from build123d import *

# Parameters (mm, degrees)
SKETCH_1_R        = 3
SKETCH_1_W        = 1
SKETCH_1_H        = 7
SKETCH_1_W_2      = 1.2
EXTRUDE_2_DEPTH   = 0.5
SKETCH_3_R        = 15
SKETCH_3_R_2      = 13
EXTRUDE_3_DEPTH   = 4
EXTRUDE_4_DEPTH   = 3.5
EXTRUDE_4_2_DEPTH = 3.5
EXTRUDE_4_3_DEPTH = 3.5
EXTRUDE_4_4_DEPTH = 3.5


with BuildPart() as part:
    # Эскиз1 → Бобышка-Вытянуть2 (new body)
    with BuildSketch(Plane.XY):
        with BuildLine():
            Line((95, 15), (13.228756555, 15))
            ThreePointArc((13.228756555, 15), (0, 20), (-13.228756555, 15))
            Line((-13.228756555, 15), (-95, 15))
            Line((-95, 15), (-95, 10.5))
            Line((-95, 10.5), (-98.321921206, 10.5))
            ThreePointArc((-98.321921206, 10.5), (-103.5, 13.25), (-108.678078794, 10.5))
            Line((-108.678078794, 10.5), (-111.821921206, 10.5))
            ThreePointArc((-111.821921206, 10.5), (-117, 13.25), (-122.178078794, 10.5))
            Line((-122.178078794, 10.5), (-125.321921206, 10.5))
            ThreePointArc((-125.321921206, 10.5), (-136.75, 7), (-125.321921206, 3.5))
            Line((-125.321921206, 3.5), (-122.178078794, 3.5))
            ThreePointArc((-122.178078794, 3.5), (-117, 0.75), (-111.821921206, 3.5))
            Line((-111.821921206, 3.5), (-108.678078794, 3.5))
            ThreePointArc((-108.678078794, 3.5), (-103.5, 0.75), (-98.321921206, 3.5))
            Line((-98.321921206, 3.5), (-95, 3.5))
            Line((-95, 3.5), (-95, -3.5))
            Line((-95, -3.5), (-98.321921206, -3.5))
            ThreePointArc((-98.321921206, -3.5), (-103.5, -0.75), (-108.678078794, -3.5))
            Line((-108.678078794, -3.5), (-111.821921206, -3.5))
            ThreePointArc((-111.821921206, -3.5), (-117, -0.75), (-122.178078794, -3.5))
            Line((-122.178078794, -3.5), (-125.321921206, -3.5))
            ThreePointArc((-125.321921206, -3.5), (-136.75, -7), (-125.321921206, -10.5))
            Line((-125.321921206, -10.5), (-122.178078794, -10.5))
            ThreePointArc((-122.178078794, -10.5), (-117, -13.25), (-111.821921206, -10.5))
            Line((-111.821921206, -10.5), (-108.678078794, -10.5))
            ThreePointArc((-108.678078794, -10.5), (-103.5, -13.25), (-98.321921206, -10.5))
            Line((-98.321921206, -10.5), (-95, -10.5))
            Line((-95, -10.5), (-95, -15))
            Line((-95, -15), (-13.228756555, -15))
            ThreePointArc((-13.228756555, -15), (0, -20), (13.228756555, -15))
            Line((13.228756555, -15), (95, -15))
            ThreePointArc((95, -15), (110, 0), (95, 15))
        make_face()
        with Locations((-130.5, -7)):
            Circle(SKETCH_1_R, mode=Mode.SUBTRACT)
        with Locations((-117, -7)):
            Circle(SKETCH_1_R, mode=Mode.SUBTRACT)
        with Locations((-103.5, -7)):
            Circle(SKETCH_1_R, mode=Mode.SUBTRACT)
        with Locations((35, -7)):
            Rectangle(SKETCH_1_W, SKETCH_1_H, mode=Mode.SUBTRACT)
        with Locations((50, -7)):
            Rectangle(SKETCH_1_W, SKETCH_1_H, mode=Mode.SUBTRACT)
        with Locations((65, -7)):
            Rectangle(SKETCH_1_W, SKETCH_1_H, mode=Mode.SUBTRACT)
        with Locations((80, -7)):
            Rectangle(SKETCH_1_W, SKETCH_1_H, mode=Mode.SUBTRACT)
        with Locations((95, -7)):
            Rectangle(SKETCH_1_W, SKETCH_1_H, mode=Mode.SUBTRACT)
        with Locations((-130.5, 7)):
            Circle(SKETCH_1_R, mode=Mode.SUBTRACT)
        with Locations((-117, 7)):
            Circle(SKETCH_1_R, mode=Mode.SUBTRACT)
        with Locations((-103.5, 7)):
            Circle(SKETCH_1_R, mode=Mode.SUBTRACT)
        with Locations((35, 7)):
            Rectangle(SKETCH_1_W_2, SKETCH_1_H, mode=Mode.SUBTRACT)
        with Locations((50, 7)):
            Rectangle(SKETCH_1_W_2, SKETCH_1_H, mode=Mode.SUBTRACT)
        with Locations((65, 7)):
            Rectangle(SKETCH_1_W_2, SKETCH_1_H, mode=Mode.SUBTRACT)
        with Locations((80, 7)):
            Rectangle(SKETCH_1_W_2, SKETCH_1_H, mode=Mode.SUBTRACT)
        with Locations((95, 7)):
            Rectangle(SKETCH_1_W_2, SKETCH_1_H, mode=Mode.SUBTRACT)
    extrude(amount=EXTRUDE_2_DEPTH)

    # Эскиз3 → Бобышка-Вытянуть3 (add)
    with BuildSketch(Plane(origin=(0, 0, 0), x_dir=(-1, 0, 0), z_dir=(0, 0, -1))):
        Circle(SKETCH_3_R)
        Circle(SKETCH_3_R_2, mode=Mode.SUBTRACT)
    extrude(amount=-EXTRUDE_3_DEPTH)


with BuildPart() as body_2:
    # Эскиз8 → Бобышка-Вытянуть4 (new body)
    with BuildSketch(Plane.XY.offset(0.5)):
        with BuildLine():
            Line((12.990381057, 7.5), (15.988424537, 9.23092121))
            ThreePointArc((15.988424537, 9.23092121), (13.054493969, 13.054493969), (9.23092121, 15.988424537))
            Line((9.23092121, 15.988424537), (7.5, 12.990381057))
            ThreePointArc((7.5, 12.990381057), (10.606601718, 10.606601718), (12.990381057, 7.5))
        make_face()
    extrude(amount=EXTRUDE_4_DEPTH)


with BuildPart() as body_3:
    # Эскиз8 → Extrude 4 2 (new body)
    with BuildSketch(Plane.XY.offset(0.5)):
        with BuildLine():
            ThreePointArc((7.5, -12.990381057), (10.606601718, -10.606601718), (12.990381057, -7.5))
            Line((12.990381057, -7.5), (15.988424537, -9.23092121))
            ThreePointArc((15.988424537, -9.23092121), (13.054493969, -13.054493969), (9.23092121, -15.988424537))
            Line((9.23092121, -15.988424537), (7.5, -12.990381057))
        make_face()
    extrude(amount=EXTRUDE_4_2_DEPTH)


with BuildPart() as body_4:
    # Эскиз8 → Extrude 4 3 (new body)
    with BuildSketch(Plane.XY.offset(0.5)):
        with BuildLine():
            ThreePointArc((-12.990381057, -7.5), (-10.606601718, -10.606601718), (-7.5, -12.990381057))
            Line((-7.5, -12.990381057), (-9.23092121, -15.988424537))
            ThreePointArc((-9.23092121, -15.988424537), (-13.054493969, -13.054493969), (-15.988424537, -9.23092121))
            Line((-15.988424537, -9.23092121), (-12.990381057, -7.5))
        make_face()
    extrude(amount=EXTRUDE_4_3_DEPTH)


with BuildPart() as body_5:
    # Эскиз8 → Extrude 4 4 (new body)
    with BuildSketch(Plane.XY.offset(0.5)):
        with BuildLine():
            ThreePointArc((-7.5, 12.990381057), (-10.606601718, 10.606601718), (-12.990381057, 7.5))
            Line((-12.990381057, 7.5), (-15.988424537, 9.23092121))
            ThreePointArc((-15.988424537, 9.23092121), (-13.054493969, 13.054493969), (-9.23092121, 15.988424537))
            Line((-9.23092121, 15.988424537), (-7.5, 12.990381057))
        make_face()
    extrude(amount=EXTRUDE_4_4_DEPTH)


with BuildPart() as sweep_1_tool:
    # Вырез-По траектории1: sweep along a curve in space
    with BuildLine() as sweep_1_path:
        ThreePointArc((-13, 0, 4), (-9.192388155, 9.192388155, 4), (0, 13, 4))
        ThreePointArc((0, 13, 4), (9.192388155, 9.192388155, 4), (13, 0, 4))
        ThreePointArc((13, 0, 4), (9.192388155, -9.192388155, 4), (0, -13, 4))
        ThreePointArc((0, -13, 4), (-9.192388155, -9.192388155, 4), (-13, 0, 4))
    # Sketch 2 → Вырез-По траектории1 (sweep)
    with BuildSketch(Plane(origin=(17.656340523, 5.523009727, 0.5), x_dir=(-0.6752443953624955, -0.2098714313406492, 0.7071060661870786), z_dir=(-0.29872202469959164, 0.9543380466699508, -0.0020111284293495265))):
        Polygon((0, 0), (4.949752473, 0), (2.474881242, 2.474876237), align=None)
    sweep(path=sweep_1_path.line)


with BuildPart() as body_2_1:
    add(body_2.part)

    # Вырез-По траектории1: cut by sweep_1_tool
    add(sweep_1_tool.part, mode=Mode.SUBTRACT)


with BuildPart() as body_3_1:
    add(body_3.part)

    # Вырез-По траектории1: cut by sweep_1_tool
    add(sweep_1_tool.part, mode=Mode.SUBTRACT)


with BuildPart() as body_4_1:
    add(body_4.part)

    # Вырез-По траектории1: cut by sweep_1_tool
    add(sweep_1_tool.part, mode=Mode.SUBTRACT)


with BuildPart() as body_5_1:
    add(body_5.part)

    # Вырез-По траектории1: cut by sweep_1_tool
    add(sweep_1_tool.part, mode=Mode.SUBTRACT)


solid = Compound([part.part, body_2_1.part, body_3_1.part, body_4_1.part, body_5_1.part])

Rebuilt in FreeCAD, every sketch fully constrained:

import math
import FreeCAD as App
import Part
import Sketcher
Q = App.Units.Quantity


def add_polygon(sketch, points):
    """Adds a closed chain of lines whose ends are joined by coincident constraints."""
    first, n = sketch.GeometryCount, len(points)
    for a, b in zip(points, points[1:] + points[:1]):
        sketch.addGeometry(Part.LineSegment(App.Vector(*a, 0), App.Vector(*b, 0)), False)
    for i in range(n):
        sketch.addConstraint(Sketcher.Constraint("Coincident", first + i, 2, first + (i + 1) % n, 1))

doc = App.newDocument("Part")
body = doc.addObject("PartDesign::Body", "Body")

# Sketch on XY plane
sketch1 = body.newObject("Sketcher::SketchObject", "Sketch")
sketch1.AttachmentSupport = (doc.getObject("XY_Plane"), [""])
sketch1.MapMode = "FlatFace"
sketch1.addGeometry(Part.LineSegment(App.Vector(95, 15, 0), App.Vector(13.228757, 15, 0)), False)  # 0
sketch1.addGeometry(Part.ArcOfCircle(Part.Circle(App.Vector(0, 0, 0), App.Vector(0, 0, 1), 20), math.radians(48.590378), math.radians(131.409622)), False)  # 1
sketch1.addGeometry(Part.LineSegment(App.Vector(-13.228757, 15, 0), App.Vector(-95, 15, 0)), False)  # 2
sketch1.addGeometry(Part.LineSegment(App.Vector(-95, 15, 0), App.Vector(-95, 10.5, 0)), False)  # 3
sketch1.addGeometry(Part.LineSegment(App.Vector(-95, 10.5, 0), App.Vector(-98.321921, 10.5, 0)), False)  # 4
sketch1.addGeometry(Part.ArcOfCircle(Part.Circle(App.Vector(-103.5, 7, 0), App.Vector(0, 0, 1), 6.25), math.radians(34.055798), math.radians(145.944202)), False)  # 5
sketch1.addGeometry(Part.LineSegment(App.Vector(-108.678079, 10.5, 0), App.Vector(-111.821921, 10.5, 0)), False)  # 6
sketch1.addGeometry(Part.ArcOfCircle(Part.Circle(App.Vector(-117, 7, 0), App.Vector(0, 0, 1), 6.25), math.radians(34.055798), math.radians(145.944202)), False)  # 7
sketch1.addGeometry(Part.LineSegment(App.Vector(-122.178079, 10.5, 0), App.Vector(-125.321921, 10.5, 0)), False)  # 8
sketch1.addGeometry(Part.ArcOfCircle(Part.Circle(App.Vector(-130.5, 7, 0), App.Vector(0, 0, 1), 6.25), math.radians(34.055798), math.radians(325.944202)), False)  # 9
sketch1.addGeometry(Part.LineSegment(App.Vector(-125.321921, 3.5, 0), App.Vector(-122.178079, 3.5, 0)), False)  # 10
sketch1.addGeometry(Part.ArcOfCircle(Part.Circle(App.Vector(-117, 7, 0), App.Vector(0, 0, 1), 6.25), math.radians(-145.944202), math.radians(-34.055798)), False)  # 11
sketch1.addGeometry(Part.LineSegment(App.Vector(-111.821921, 3.5, 0), App.Vector(-108.678079, 3.5, 0)), False)  # 12
sketch1.addGeometry(Part.ArcOfCircle(Part.Circle(App.Vector(-103.5, 7, 0), App.Vector(0, 0, 1), 6.25), math.radians(-145.944202), math.radians(-34.055798)), False)  # 13
sketch1.addGeometry(Part.LineSegment(App.Vector(-98.321921, 3.5, 0), App.Vector(-95, 3.5, 0)), False)  # 14
sketch1.addGeometry(Part.LineSegment(App.Vector(-95, 3.5, 0), App.Vector(-95, -3.5, 0)), False)  # 15
sketch1.addGeometry(Part.LineSegment(App.Vector(-95, -3.5, 0), App.Vector(-98.321921, -3.5, 0)), False)  # 16
sketch1.addGeometry(Part.ArcOfCircle(Part.Circle(App.Vector(-103.5, -7, 0), App.Vector(0, 0, 1), 6.25), math.radians(34.055798), math.radians(145.944202)), False)  # 17
sketch1.addGeometry(Part.LineSegment(App.Vector(-108.678079, -3.5, 0), App.Vector(-111.821921, -3.5, 0)), False)  # 18
sketch1.addGeometry(Part.ArcOfCircle(Part.Circle(App.Vector(-117, -7, 0), App.Vector(0, 0, 1), 6.25), math.radians(34.055798), math.radians(145.944202)), False)  # 19
sketch1.addGeometry(Part.LineSegment(App.Vector(-122.178079, -3.5, 0), App.Vector(-125.321921, -3.5, 0)), False)  # 20
sketch1.addGeometry(Part.ArcOfCircle(Part.Circle(App.Vector(-130.5, -7, 0), App.Vector(0, 0, 1), 6.25), math.radians(34.055798), math.radians(325.944202)), False)  # 21
sketch1.addGeometry(Part.LineSegment(App.Vector(-125.321921, -10.5, 0), App.Vector(-122.178079, -10.5, 0)), False)  # 22
sketch1.addGeometry(Part.ArcOfCircle(Part.Circle(App.Vector(-117, -7, 0), App.Vector(0, 0, 1), 6.25), math.radians(-145.944202), math.radians(-34.055798)), False)  # 23
sketch1.addGeometry(Part.LineSegment(App.Vector(-111.821921, -10.5, 0), App.Vector(-108.678079, -10.5, 0)), False)  # 24
sketch1.addGeometry(Part.ArcOfCircle(Part.Circle(App.Vector(-103.5, -7, 0), App.Vector(0, 0, 1), 6.25), math.radians(-145.944202), math.radians(-34.055798)), False)  # 25
sketch1.addGeometry(Part.LineSegment(App.Vector(-98.321921, -10.5, 0), App.Vector(-95, -10.5, 0)), False)  # 26
sketch1.addGeometry(Part.LineSegment(App.Vector(-95, -10.5, 0), App.Vector(-95, -15, 0)), False)  # 27
sketch1.addGeometry(Part.LineSegment(App.Vector(-95, -15, 0), App.Vector(-13.228757, -15, 0)), False)  # 28
sketch1.addGeometry(Part.ArcOfCircle(Part.Circle(App.Vector(0, 0, 0), App.Vector(0, 0, 1), 20), math.radians(-131.409622), math.radians(-48.590378)), False)  # 29
sketch1.addGeometry(Part.LineSegment(App.Vector(13.228757, -15, 0), App.Vector(95, -15, 0)), False)  # 30
sketch1.addGeometry(Part.ArcOfCircle(Part.Circle(App.Vector(95, 0, 0), App.Vector(0, 0, 1), 15), math.radians(-90), math.radians(90)), False)  # 31
sketch1.addGeometry(Part.Circle(App.Vector(-130.5, -7, 0), App.Vector(0, 0, 1), 3), False)  # 32
sketch1.addGeometry(Part.Circle(App.Vector(-117, -7, 0), App.Vector(0, 0, 1), 3), False)  # 33
sketch1.addGeometry(Part.Circle(App.Vector(-103.5, -7, 0), App.Vector(0, 0, 1), 3), False)  # 34
add_polygon(sketch1, [(35.5, -10.5), (34.5, -10.5), (34.5, -3.5), (35.5, -3.5)])  # lines 35-38
add_polygon(sketch1, [(50.5, -10.5), (49.5, -10.5), (49.5, -3.5), (50.5, -3.5)])  # lines 39-42
add_polygon(sketch1, [(65.5, -10.5), (64.5, -10.5), (64.5, -3.5), (65.5, -3.5)])  # lines 43-46
add_polygon(sketch1, [(80.5, -10.5), (79.5, -10.5), (79.5, -3.5), (80.5, -3.5)])  # lines 47-50
add_polygon(sketch1, [(95.5, -10.5), (94.5, -10.5), (94.5, -3.5), (95.5, -3.5)])  # lines 51-54
sketch1.addGeometry(Part.Circle(App.Vector(-130.5, 7, 0), App.Vector(0, 0, 1), 3), False)  # 55
sketch1.addGeometry(Part.Circle(App.Vector(-117, 7, 0), App.Vector(0, 0, 1), 3), False)  # 56
sketch1.addGeometry(Part.Circle(App.Vector(-103.5, 7, 0), App.Vector(0, 0, 1), 3), False)  # 57
add_polygon(sketch1, [(35.6, 3.5), (34.4, 3.5), (34.4, 10.5), (35.6, 10.5)])  # lines 58-61
add_polygon(sketch1, [(50.6, 3.5), (49.4, 3.5), (49.4, 10.5), (50.6, 10.5)])  # lines 62-65
add_polygon(sketch1, [(65.6, 3.5), (64.4, 3.5), (64.4, 10.5), (65.6, 10.5)])  # lines 66-69
add_polygon(sketch1, [(80.6, 3.5), (79.4, 3.5), (79.4, 10.5), (80.6, 10.5)])  # lines 70-73
add_polygon(sketch1, [(95.6, 3.5), (94.4, 3.5), (94.4, 10.5), (95.6, 10.5)])  # lines 74-77
sketch1.addConstraint([
    Sketcher.Constraint("Coincident", 0, 2, 1, 1),
    Sketcher.Constraint("Coincident", 1, 2, 2, 1),
    Sketcher.Constraint("Coincident", 2, 2, 3, 1),
    Sketcher.Constraint("Coincident", 3, 2, 4, 1),
    Sketcher.Constraint("Coincident", 4, 2, 5, 1),
    Sketcher.Constraint("Coincident", 5, 2, 6, 1),
    Sketcher.Constraint("Coincident", 6, 2, 7, 1),
    Sketcher.Constraint("Coincident", 7, 2, 8, 1),
    Sketcher.Constraint("Coincident", 8, 2, 9, 1),
    Sketcher.Constraint("Coincident", 9, 2, 10, 1),
    Sketcher.Constraint("Coincident", 10, 2, 11, 1),
    Sketcher.Constraint("Coincident", 11, 2, 12, 1),
    Sketcher.Constraint("Coincident", 12, 2, 13, 1),
    Sketcher.Constraint("Coincident", 13, 2, 14, 1),
    Sketcher.Constraint("Coincident", 14, 2, 15, 1),
    Sketcher.Constraint("Coincident", 15, 2, 16, 1),
    Sketcher.Constraint("Coincident", 16, 2, 17, 1),
    Sketcher.Constraint("Coincident", 17, 2, 18, 1),
    Sketcher.Constraint("Coincident", 18, 2, 19, 1),
    Sketcher.Constraint("Coincident", 19, 2, 20, 1),
    Sketcher.Constraint("Coincident", 20, 2, 21, 1),
    Sketcher.Constraint("Coincident", 21, 2, 22, 1),
    Sketcher.Constraint("Coincident", 22, 2, 23, 1),
    Sketcher.Constraint("Coincident", 23, 2, 24, 1),
    Sketcher.Constraint("Coincident", 24, 2, 25, 1),
    Sketcher.Constraint("Coincident", 25, 2, 26, 1),
    Sketcher.Constraint("Coincident", 26, 2, 27, 1),
    Sketcher.Constraint("Coincident", 27, 2, 28, 1),
    Sketcher.Constraint("Coincident", 28, 2, 29, 1),
    Sketcher.Constraint("Coincident", 29, 2, 30, 1),
    Sketcher.Constraint("Tangent", 30, 2, 31, 1),
    Sketcher.Constraint("Tangent", 31, 2, 0, 1),
    Sketcher.Constraint("Horizontal", 0),
    Sketcher.Constraint("Horizontal", 2),
    Sketcher.Constraint("Vertical", 3),
    Sketcher.Constraint("Horizontal", 4),
    Sketcher.Constraint("Horizontal", 6),
    Sketcher.Constraint("Horizontal", 8),
    Sketcher.Constraint("Horizontal", 10),
    Sketcher.Constraint("Horizontal", 12),
    Sketcher.Constraint("Horizontal", 14),
    Sketcher.Constraint("Vertical", 15),
    Sketcher.Constraint("Horizontal", 16),
    Sketcher.Constraint("Horizontal", 18),
    Sketcher.Constraint("Horizontal", 20),
    Sketcher.Constraint("Horizontal", 22),
    Sketcher.Constraint("Horizontal", 24),
    Sketcher.Constraint("Horizontal", 26),
    Sketcher.Constraint("Vertical", 27),
    Sketcher.Constraint("Horizontal", 28),
    Sketcher.Constraint("Horizontal", 30),
    Sketcher.Constraint("Horizontal", 35),
    Sketcher.Constraint("Vertical", 36),
    Sketcher.Constraint("Horizontal", 37),
    Sketcher.Constraint("Vertical", 38),
    Sketcher.Constraint("Horizontal", 39),
    Sketcher.Constraint("Vertical", 40),
    Sketcher.Constraint("Horizontal", 41),
    Sketcher.Constraint("Vertical", 42),
    Sketcher.Constraint("Horizontal", 43),
    Sketcher.Constraint("Vertical", 44),
    Sketcher.Constraint("Horizontal", 45),
    Sketcher.Constraint("Vertical", 46),
    Sketcher.Constraint("Horizontal", 47),
    Sketcher.Constraint("Vertical", 48),
    Sketcher.Constraint("Horizontal", 49),
    Sketcher.Constraint("Vertical", 50),
    Sketcher.Constraint("Horizontal", 51),
    Sketcher.Constraint("Vertical", 52),
    Sketcher.Constraint("Horizontal", 53),
    Sketcher.Constraint("Vertical", 54),
    Sketcher.Constraint("Horizontal", 58),
    Sketcher.Constraint("Vertical", 59),
    Sketcher.Constraint("Horizontal", 60),
    Sketcher.Constraint("Vertical", 61),
    Sketcher.Constraint("Horizontal", 62),
    Sketcher.Constraint("Vertical", 63),
    Sketcher.Constraint("Horizontal", 64),
    Sketcher.Constraint("Vertical", 65),
    Sketcher.Constraint("Horizontal", 66),
    Sketcher.Constraint("Vertical", 67),
    Sketcher.Constraint("Horizontal", 68),
    Sketcher.Constraint("Vertical", 69),
    Sketcher.Constraint("Horizontal", 70),
    Sketcher.Constraint("Vertical", 71),
    Sketcher.Constraint("Horizontal", 72),
    Sketcher.Constraint("Vertical", 73),
    Sketcher.Constraint("Horizontal", 74),
    Sketcher.Constraint("Vertical", 75),
    Sketcher.Constraint("Horizontal", 76),
    Sketcher.Constraint("Vertical", 77),
    Sketcher.Constraint("Coincident", 1, 3, -1, 1),
    Sketcher.Constraint("Coincident", 29, 3, -1, 1),
    Sketcher.Constraint("Coincident", 11, 3, 7, 3),
    Sketcher.Constraint("Coincident", 13, 3, 5, 3),
    Sketcher.Constraint("Coincident", 23, 3, 19, 3),
    Sketcher.Constraint("Coincident", 25, 3, 17, 3),
    Sketcher.Constraint("Coincident", 32, 3, 21, 3),
    Sketcher.Constraint("Coincident", 33, 3, 19, 3),
    Sketcher.Constraint("Coincident", 34, 3, 17, 3),
    Sketcher.Constraint("Coincident", 55, 3, 9, 3),
    Sketcher.Constraint("Coincident", 56, 3, 7, 3),
    Sketcher.Constraint("Coincident", 57, 3, 5, 3),
    Sketcher.Constraint("Equal", 5, 7),
    Sketcher.Constraint("Equal", 7, 9),
    Sketcher.Constraint("Equal", 9, 11),
    Sketcher.Constraint("Equal", 11, 13),
    Sketcher.Constraint("Equal", 13, 17),
    Sketcher.Constraint("Equal", 17, 19),
    Sketcher.Constraint("Equal", 19, 21),
    Sketcher.Constraint("Equal", 21, 23),
    Sketcher.Constraint("Equal", 23, 25),
    Sketcher.Constraint("Equal", 1, 29),
    Sketcher.Constraint("Equal", 32, 33),
    Sketcher.Constraint("Equal", 33, 34),
    Sketcher.Constraint("Equal", 34, 55),
    Sketcher.Constraint("Equal", 55, 56),
    Sketcher.Constraint("Equal", 56, 57),
    Sketcher.Constraint("Symmetric", 2, 2, 30, 2, -1, 1),
    Sketcher.Constraint("Symmetric", 27, 2, 31, 2, -1, 1),
    Sketcher.Constraint("Symmetric", 5, 3, 17, 3, -1),
    Sketcher.Constraint("Symmetric", 7, 3, 19, 3, -1),
    Sketcher.Constraint("Symmetric", 9, 3, 21, 3, -1),
    Sketcher.Constraint("PointOnObject", 31, 3, -1),
    Sketcher.Constraint("Horizontal", 5, 3, 7, 3),
    Sketcher.Constraint("Horizontal", 7, 3, 9, 3),
    Sketcher.Constraint("Horizontal", 4, 2, 5, 2),
    Sketcher.Constraint("Horizontal", 6, 2, 7, 2),
    Sketcher.Constraint("Horizontal", 10, 2, 11, 2),
    Sketcher.Constraint("Horizontal", 12, 2, 13, 2),
    Sketcher.Constraint("Horizontal", 16, 2, 17, 2),
    Sketcher.Constraint("Horizontal", 18, 2, 19, 2),
    Sketcher.Constraint("Horizontal", 22, 2, 23, 2),
    Sketcher.Constraint("Horizontal", 24, 2, 25, 2),
    Sketcher.Constraint("Horizontal", 26, 2, 35, 2),
    Sketcher.Constraint("Horizontal", 20, 2, 36, 2),
    Sketcher.Constraint("Horizontal", 38, 2, 39, 2),
    Sketcher.Constraint("Horizontal", 37, 2, 40, 2),
    Sketcher.Constraint("Horizontal", 42, 2, 43, 2),
    Sketcher.Constraint("Horizontal", 41, 2, 44, 2),
    Sketcher.Constraint("Horizontal", 46, 2, 47, 2),
    Sketcher.Constraint("Horizontal", 45, 2, 48, 2),
    Sketcher.Constraint("Horizontal", 50, 2, 51, 2),
    Sketcher.Constraint("Horizontal", 49, 2, 52, 2),
    Sketcher.Constraint("Horizontal", 14, 2, 58, 2),
    Sketcher.Constraint("Horizontal", 8, 2, 59, 2),
    Sketcher.Constraint("Horizontal", 61, 2, 62, 2),
    Sketcher.Constraint("Horizontal", 60, 2, 63, 2),
    Sketcher.Constraint("Horizontal", 65, 2, 66, 2),
    Sketcher.Constraint("Horizontal", 64, 2, 67, 2),
    Sketcher.Constraint("Horizontal", 69, 2, 70, 2),
    Sketcher.Constraint("Horizontal", 68, 2, 71, 2),
    Sketcher.Constraint("Horizontal", 73, 2, 74, 2),
    Sketcher.Constraint("Horizontal", 72, 2, 75, 2),
    Sketcher.Constraint("Vertical", 8, 2, 9, 2),
    Sketcher.Constraint("Vertical", 3, 2, 14, 2),
    Sketcher.Constraint("Vertical", 13, 2, 16, 2),
    Sketcher.Constraint("Vertical", 20, 2, 21, 2),
    Sketcher.Constraint("Equal", 6, 8),
    Sketcher.Constraint("Equal", 37, 39),
    Sketcher.Constraint("Equal", 41, 43),
    Sketcher.Constraint("Equal", 45, 47),
    Sketcher.Constraint("Equal", 49, 51),
    Sketcher.Constraint("Equal", 60, 62),
    Sketcher.Constraint("Equal", 64, 66),
    Sketcher.Constraint("Equal", 68, 70),
    Sketcher.Constraint("Equal", 72, 74),
    Sketcher.Constraint("Equal", 15, 36),
    Sketcher.Constraint("Diameter", 32, 6.0),
    Sketcher.Constraint("Radius", 1, 20.0),
    Sketcher.Constraint("Radius", 31, 15.0),
    Sketcher.Constraint("DistanceX", 35, 2, 35, 1, 1.0),
    Sketcher.Constraint("DistanceY", 15, 2, 15, 1, 7.0),
    Sketcher.Constraint("Radius", 5, 6.25),
    Sketcher.Constraint("DistanceX", 58, 2, 58, 1, 1.2),
    Sketcher.Constraint("DistanceX", 7, 3, -1, 1, 117.0),
    Sketcher.Constraint("DistanceX", -1, 1, 31, 3, 95.0),
    Sketcher.Constraint("DistanceX", 5, 3, -1, 1, 103.5),
    Sketcher.Constraint("DistanceX", -1, 1, 35, 2, 34.5),
    Sketcher.Constraint("DistanceX", -1, 1, 39, 2, 49.5),
    Sketcher.Constraint("DistanceX", -1, 1, 43, 2, 64.5),
    Sketcher.Constraint("DistanceX", -1, 1, 47, 2, 79.5),
    Sketcher.Constraint("DistanceX", -1, 1, 51, 2, 94.5),
    Sketcher.Constraint("DistanceX", -1, 1, 58, 2, 34.4),
    Sketcher.Constraint("DistanceX", -1, 1, 62, 2, 49.4),
    Sketcher.Constraint("DistanceX", -1, 1, 66, 2, 64.4),
    Sketcher.Constraint("DistanceX", -1, 1, 70, 2, 79.4),
    Sketcher.Constraint("DistanceX", -1, 1, 74, 2, 94.4),
])
pad1 = body.newObject("PartDesign::Pad", "Pad")
pad1.Profile = sketch1
pad1.Length = 0.5

# Sketch on XY plane
sketch2 = body.newObject("Sketcher::SketchObject", "Sketch001")
sketch2.AttachmentSupport = (doc.getObject("XY_Plane"), [""])
sketch2.MapMode = "FlatFace"
sketch2.addGeometry([
    Part.Circle(App.Vector(0, 0, 0), App.Vector(0, 0, 1), 15),
    Part.Circle(App.Vector(0, 0, 0), App.Vector(0, 0, 1), 13),
], False)
sketch2.addConstraint([
    Sketcher.Constraint("Coincident", 0, 3, -1, 1),
    Sketcher.Constraint("Coincident", 1, 3, -1, 1),
    Sketcher.Constraint("Diameter", 0, 30.0),
    Sketcher.Constraint("Diameter", 1, 26.0),
])
pad2 = body.newObject("PartDesign::Pad", "Pad001")
pad2.Profile = sketch2
pad2.Length = 4
body2 = doc.addObject("PartDesign::Body", "Body001")

# Sketch on XY plane
sketch3 = body2.newObject("Sketcher::SketchObject", "Sketch002")
sketch3.AttachmentSupport = (doc.getObject("XY_Plane001"), [""])
sketch3.MapMode = "FlatFace"
sketch3.AttachmentOffset = App.Placement(App.Vector(0, 0, 0.5), App.Rotation())
sketch3.addGeometry([
    Part.LineSegment(App.Vector(12.990381, 7.5, 0), App.Vector(15.988425, 9.230921, 0)),
    Part.ArcOfCircle(Part.Circle(App.Vector(0, 0, 0), App.Vector(0, 0, 1), 18.461842), math.radians(30), math.radians(60)),
    Part.LineSegment(App.Vector(9.230921, 15.988425, 0), App.Vector(7.5, 12.990381, 0)),
    Part.ArcOfCircle(Part.Circle(App.Vector(0, 0, 0), App.Vector(0, 0, 1), 15), math.radians(30), math.radians(60)),
], False)
sketch3.addConstraint([
    Sketcher.Constraint("Coincident", 0, 2, 1, 1),
    Sketcher.Constraint("Coincident", 1, 2, 2, 1),
    Sketcher.Constraint("Coincident", 2, 2, 3, 2),
    Sketcher.Constraint("Coincident", 3, 1, 0, 1),
    Sketcher.Constraint("Coincident", 1, 3, -1, 1),
    Sketcher.Constraint("Coincident", 3, 3, -1, 1),
    Sketcher.Constraint("Radius", 3, 15.0),
    Sketcher.Constraint("Angle", 0, Q("30 deg")),
    Sketcher.Constraint("Angle", 2, Q("-120 deg")),
    Sketcher.Constraint("DistanceX", -1, 1, 2, 2, 7.5),
    Sketcher.Constraint("DistanceY", -1, 1, 3, 1, 7.5),
    Sketcher.Constraint("Radius", 1, 18.461842),
])
pad3 = body2.newObject("PartDesign::Pad", "Pad002")
pad3.Profile = sketch3
pad3.Length = 3.5
body3 = doc.addObject("PartDesign::Body", "Body002")

# Sketch on XY plane
sketch4 = body3.newObject("Sketcher::SketchObject", "Sketch003")
sketch4.AttachmentSupport = (doc.getObject("XY_Plane002"), [""])
sketch4.MapMode = "FlatFace"
sketch4.AttachmentOffset = App.Placement(App.Vector(0, 0, 0.5), App.Rotation())
sketch4.addGeometry([
    Part.ArcOfCircle(Part.Circle(App.Vector(0, 0, 0), App.Vector(0, 0, 1), 15), math.radians(-60), math.radians(-30)),
    Part.LineSegment(App.Vector(7.5, -12.990381, 0), App.Vector(9.230921, -15.988425, 0)),
    Part.ArcOfCircle(Part.Circle(App.Vector(0, 0, 0), App.Vector(0, 0, 1), 18.461842), math.radians(-60), math.radians(-30)),
    Part.LineSegment(App.Vector(15.988425, -9.230921, 0), App.Vector(12.990381, -7.5, 0)),
], False)
sketch4.addConstraint([
    Sketcher.Constraint("Coincident", 0, 1, 1, 1),
    Sketcher.Constraint("Coincident", 1, 2, 2, 1),
    Sketcher.Constraint("Coincident", 2, 2, 3, 1),
    Sketcher.Constraint("Coincident", 3, 2, 0, 2),
    Sketcher.Constraint("Coincident", 0, 3, -1, 1),
    Sketcher.Constraint("Coincident", 2, 3, -1, 1),
    Sketcher.Constraint("Radius", 0, 15.0),
    Sketcher.Constraint("Angle", 1, Q("-60 deg")),
    Sketcher.Constraint("Angle", 3, Q("150 deg")),
    Sketcher.Constraint("DistanceX", -1, 1, 0, 1, 7.5),
    Sketcher.Constraint("DistanceY", 3, 2, -1, 1, 7.5),
    Sketcher.Constraint("Radius", 2, 18.461842),
])
pad4 = body3.newObject("PartDesign::Pad", "Pad003")
pad4.Profile = sketch4
pad4.Length = 3.5
body4 = doc.addObject("PartDesign::Body", "Body003")

# Sketch on XY plane
sketch5 = body4.newObject("Sketcher::SketchObject", "Sketch004")
sketch5.AttachmentSupport = (doc.getObject("XY_Plane003"), [""])
sketch5.MapMode = "FlatFace"
sketch5.AttachmentOffset = App.Placement(App.Vector(0, 0, 0.5), App.Rotation())
sketch5.addGeometry([
    Part.ArcOfCircle(Part.Circle(App.Vector(0, 0, 0), App.Vector(0, 0, 1), 15), math.radians(-150), math.radians(-120)),
    Part.LineSegment(App.Vector(-12.990381, -7.5, 0), App.Vector(-15.988425, -9.230921, 0)),
    Part.ArcOfCircle(Part.Circle(App.Vector(0, 0, 0), App.Vector(0, 0, 1), 18.461842), math.radians(-150), math.radians(-120)),
    Part.LineSegment(App.Vector(-9.230921, -15.988425, 0), App.Vector(-7.5, -12.990381, 0)),
], False)
sketch5.addConstraint([
    Sketcher.Constraint("Coincident", 0, 1, 1, 1),
    Sketcher.Constraint("Coincident", 1, 2, 2, 1),
    Sketcher.Constraint("Coincident", 2, 2, 3, 1),
    Sketcher.Constraint("Coincident", 3, 2, 0, 2),
    Sketcher.Constraint("Coincident", 0, 3, -1, 1),
    Sketcher.Constraint("Coincident", 2, 3, -1, 1),
    Sketcher.Constraint("Radius", 0, 15.0),
    Sketcher.Constraint("Angle", 1, Q("-150 deg")),
    Sketcher.Constraint("Angle", 3, Q("60 deg")),
    Sketcher.Constraint("DistanceY", 0, 1, -1, 1, 7.5),
    Sketcher.Constraint("DistanceX", 3, 2, -1, 1, 7.5),
    Sketcher.Constraint("Radius", 2, 18.461842),
])
pad5 = body4.newObject("PartDesign::Pad", "Pad004")
pad5.Profile = sketch5
pad5.Length = 3.5
body5 = doc.addObject("PartDesign::Body", "Body004")

# Sketch on XY plane
sketch6 = body5.newObject("Sketcher::SketchObject", "Sketch005")
sketch6.AttachmentSupport = (doc.getObject("XY_Plane004"), [""])
sketch6.MapMode = "FlatFace"
sketch6.AttachmentOffset = App.Placement(App.Vector(0, 0, 0.5), App.Rotation())
sketch6.addGeometry([
    Part.ArcOfCircle(Part.Circle(App.Vector(0, 0, 0), App.Vector(0, 0, 1), 15), math.radians(120), math.radians(150)),
    Part.LineSegment(App.Vector(-7.5, 12.990381, 0), App.Vector(-9.230921, 15.988425, 0)),
    Part.ArcOfCircle(Part.Circle(App.Vector(0, 0, 0), App.Vector(0, 0, 1), 18.461842), math.radians(120), math.radians(150)),
    Part.LineSegment(App.Vector(-15.988425, 9.230921, 0), App.Vector(-12.990381, 7.5, 0)),
], False)
sketch6.addConstraint([
    Sketcher.Constraint("Coincident", 0, 1, 1, 1),
    Sketcher.Constraint("Coincident", 1, 2, 2, 1),
    Sketcher.Constraint("Coincident", 2, 2, 3, 1),
    Sketcher.Constraint("Coincident", 3, 2, 0, 2),
    Sketcher.Constraint("Coincident", 0, 3, -1, 1),
    Sketcher.Constraint("Coincident", 2, 3, -1, 1),
    Sketcher.Constraint("Radius", 0, 15.0),
    Sketcher.Constraint("Angle", 1, Q("120 deg")),
    Sketcher.Constraint("Angle", 3, Q("-30 deg")),
    Sketcher.Constraint("DistanceX", 0, 1, -1, 1, 7.5),
    Sketcher.Constraint("DistanceY", -1, 1, 3, 2, 7.5),
    Sketcher.Constraint("Radius", 2, 18.461842),
])
pad6 = body5.newObject("PartDesign::Pad", "Pad005")
pad6.Profile = sketch6
pad6.Length = 3.5
body6 = doc.addObject("PartDesign::Body", "Body005")

# Sketch on an angled plane
sketch7 = body6.newObject("Sketcher::SketchObject", "Sketch006")
sketch7.Placement = App.Placement(App.Vector(17.656341, 5.52301, 0.5), App.Rotation(App.Vector(-0.675244395, -0.209871431, 0.707106066), App.Vector(0.674396144, 0.212586159, 0.707104636), App.Vector(-0.298722025, 0.954338047, -0.002011128), "ZXY"))
add_polygon(sketch7, [(0, 0), (4.949752, 0), (2.474881, 2.474876)])  # lines 0-2
sketch7.addConstraint([
    Sketcher.Constraint("Horizontal", 0),
    Sketcher.Constraint("Coincident", 2, 2, -1, 1),
    Sketcher.Constraint("Perpendicular", 1, 2),
    Sketcher.Constraint("Distance", 1, 3.5),
    Sketcher.Constraint("DistanceX", 0, 1, 0, 2, 4.949752),
])

# Sketch on XY plane
sketch8 = body6.newObject("Sketcher::SketchObject", "Sketch007")
sketch8.AttachmentSupport = (doc.getObject("XY_Plane005"), [""])
sketch8.MapMode = "FlatFace"
sketch8.AttachmentOffset = App.Placement(App.Vector(0, 0, 4), App.Rotation())
sketch8.addGeometry([
    Part.ArcOfCircle(Part.Circle(App.Vector(0, 0, 0), App.Vector(0, 0, 1), 13), math.radians(90), math.radians(180)),
    Part.ArcOfCircle(Part.Circle(App.Vector(0, 0, 0), App.Vector(0, 0, 1), 13), math.radians(0), math.radians(90)),
    Part.ArcOfCircle(Part.Circle(App.Vector(0, 0, 0), App.Vector(0, 0, 1), 13), math.radians(-90), math.radians(0)),
    Part.ArcOfCircle(Part.Circle(App.Vector(0, 0, 0), App.Vector(0, 0, 1), 13), math.radians(-180), math.radians(-90)),
], False)
sketch8.addConstraint([
    Sketcher.Constraint("Tangent", 0, 1, 1, 2),
    Sketcher.Constraint("Tangent", 1, 1, 2, 2),
    Sketcher.Constraint("Tangent", 2, 1, 3, 2),
    Sketcher.Constraint("Tangent", 3, 1, 0, 2),
    Sketcher.Constraint("Coincident", 0, 3, -1, 1),
    Sketcher.Constraint("Equal", 0, 1),
    Sketcher.Constraint("PointOnObject", 0, 1, -2),
    Sketcher.Constraint("PointOnObject", 1, 1, -1),
    Sketcher.Constraint("PointOnObject", 2, 1, -2),
    Sketcher.Constraint("PointOnObject", 3, 1, -1),
    Sketcher.Constraint("Radius", 0, 13.0),
])
doc.recompute()

additivepipe = body6.newObject("PartDesign::AdditivePipe", "AdditivePipe")
additivepipe.Profile = sketch7
additivepipe.Spine = (sketch8, ["Edge1", "Edge2", "Edge3", "Edge4"])
doc.recompute()

body7 = doc.addObject("PartDesign::Body", "Body006")
body7.BaseFeature = body6
boolean = body2.newObject("PartDesign::Boolean", "Boolean")
boolean.Type = "Cut"
boolean.addObjects([body7])
doc.recompute()

body8 = doc.addObject("PartDesign::Body", "Body007")
body8.BaseFeature = body6
boolean2 = body3.newObject("PartDesign::Boolean", "Boolean001")
boolean2.Type = "Cut"
boolean2.addObjects([body8])
doc.recompute()

body9 = doc.addObject("PartDesign::Body", "Body008")
body9.BaseFeature = body6
boolean3 = body4.newObject("PartDesign::Boolean", "Boolean002")
boolean3.Type = "Cut"
boolean3.addObjects([body9])
doc.recompute()

boolean4 = body5.newObject("PartDesign::Boolean", "Boolean003")
boolean4.Type = "Cut"
boolean4.addObjects([body6])

doc.recompute()
